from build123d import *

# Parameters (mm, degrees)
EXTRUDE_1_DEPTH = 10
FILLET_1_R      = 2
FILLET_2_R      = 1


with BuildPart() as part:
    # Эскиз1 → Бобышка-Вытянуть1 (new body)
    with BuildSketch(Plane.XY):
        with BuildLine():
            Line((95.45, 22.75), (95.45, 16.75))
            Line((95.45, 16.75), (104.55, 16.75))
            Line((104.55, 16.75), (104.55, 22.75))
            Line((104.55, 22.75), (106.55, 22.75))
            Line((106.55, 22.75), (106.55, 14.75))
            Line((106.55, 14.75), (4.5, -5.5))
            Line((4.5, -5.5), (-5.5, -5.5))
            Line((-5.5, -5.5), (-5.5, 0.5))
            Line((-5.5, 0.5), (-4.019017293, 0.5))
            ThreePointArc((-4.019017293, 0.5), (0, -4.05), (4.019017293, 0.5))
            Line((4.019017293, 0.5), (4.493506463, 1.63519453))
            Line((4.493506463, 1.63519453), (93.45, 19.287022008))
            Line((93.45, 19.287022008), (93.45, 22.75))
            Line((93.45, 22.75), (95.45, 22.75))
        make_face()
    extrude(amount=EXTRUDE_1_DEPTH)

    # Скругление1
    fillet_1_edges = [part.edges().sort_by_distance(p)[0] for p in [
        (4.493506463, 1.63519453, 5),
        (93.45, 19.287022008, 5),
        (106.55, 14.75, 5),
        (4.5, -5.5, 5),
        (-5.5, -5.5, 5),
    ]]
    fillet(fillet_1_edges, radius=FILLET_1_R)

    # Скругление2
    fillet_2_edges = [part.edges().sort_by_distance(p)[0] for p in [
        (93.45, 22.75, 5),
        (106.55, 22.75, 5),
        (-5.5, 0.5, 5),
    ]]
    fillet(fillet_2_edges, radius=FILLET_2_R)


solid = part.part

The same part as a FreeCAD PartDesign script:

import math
import FreeCAD as App
import Part
import Sketcher


def edges_at(feature, points):
    """Names of the edges that pass closest to the given points."""
    edges = feature.Shape.Edges
    near = lambda p: min(range(len(edges)), key=lambda i: edges[i].distToShape(Part.Vertex(*p))[0])
    return sorted({f"Edge{near(p) + 1}" for p in points})

doc = App.newDocument("Part")
body = doc.addObject("PartDesign::Body", "Body")

# Sketch on XY plane
sketch1 = doc.addObject("Sketcher::SketchObject", "Sketch")
body.addObject(sketch1)
sketch1.AttachmentSupport = (doc.XY_Plane, [""])
sketch1.MapMode = "FlatFace"
sketch1.addGeometry([
    Part.LineSegment(App.Vector(95.5, 16.8, 0), App.Vector(95.5, 22.8, 0)),  # 0
    Part.LineSegment(App.Vector(95.5, 22.8, 0), App.Vector(93.5, 22.8, 0)),  # 1
    Part.LineSegment(App.Vector(93.5, 22.8, 0), App.Vector(93.5, 19.3, 0)),  # 2
    Part.LineSegment(App.Vector(93.5, 19.3, 0), App.Vector(4.5, 1.6, 0)),  # 3
    Part.LineSegment(App.Vector(4.5, 1.6, 0), App.Vector(4, 0.5, 0)),  # 4
    Part.ArcOfCircle(Part.Circle(App.Vector(0, 0, 0), App.Vector(0, 0, 1), 4), math.radians(173), math.radians(367)),  # 5
    Part.LineSegment(App.Vector(-4, 0.5, 0), App.Vector(-5.5, 0.5, 0)),  # 6
    Part.LineSegment(App.Vector(-5.5, 0.5, 0), App.Vector(-5.5, -5.5, 0)),  # 7
    Part.LineSegment(App.Vector(-5.5, -5.5, 0), App.Vector(4.5, -5.5, 0)),  # 8
    Part.LineSegment(App.Vector(4.5, -5.5, 0), App.Vector(106.5, 14.8, 0)),  # 9
    Part.LineSegment(App.Vector(106.5, 14.8, 0), App.Vector(106.5, 22.8, 0)),  # 10
    Part.LineSegment(App.Vector(106.5, 22.8, 0), App.Vector(104.5, 22.8, 0)),  # 11
    Part.LineSegment(App.Vector(104.5, 22.8, 0), App.Vector(104.5, 16.8, 0)),  # 12
    Part.LineSegment(App.Vector(104.5, 16.8, 0), App.Vector(95.5, 16.8, 0)),  # 13
], False)
sketch1.addConstraint([
    Sketcher.Constraint("Coincident", 0, 2, 1, 1),
    Sketcher.Constraint("Coincident", 1, 2, 2, 1),
    Sketcher.Constraint("Coincident", 2, 2, 3, 1),
    Sketcher.Constraint("Coincident", 3, 2, 4, 1),
    Sketcher.Constraint("Coincident", 4, 2, 5, 2),
    Sketcher.Constraint("Coincident", 5, 1, 6, 1),
    Sketcher.Constraint("Coincident", 6, 2, 7, 1),
    Sketcher.Constraint("Coincident", 7, 2, 8, 1),
    Sketcher.Constraint("Coincident", 8, 2, 9, 1),
    Sketcher.Constraint("Coincident", 9, 2, 10, 1),
    Sketcher.Constraint("Coincident", 10, 2, 11, 1),
    Sketcher.Constraint("Coincident", 11, 2, 12, 1),
    Sketcher.Constraint("Coincident", 12, 2, 13, 1),
    Sketcher.Constraint("Coincident", 13, 2, 0, 1),
    Sketcher.Constraint("Vertical", 0),
    Sketcher.Constraint("Horizontal", 1),
    Sketcher.Constraint("Vertical", 2),
    Sketcher.Constraint("Horizontal", 6),
    Sketcher.Constraint("Vertical", 7),
    Sketcher.Constraint("Horizontal", 8),
    Sketcher.Constraint("Vertical", 10),
    Sketcher.Constraint("Horizontal", 11),
    Sketcher.Constraint("Vertical", 12),
    Sketcher.Constraint("Horizontal", 13),
    Sketcher.Constraint("Coincident", 5, 3, -1, 1),
    Sketcher.Constraint("Parallel", 3, 9),
    Sketcher.Constraint("Horizontal", 4, 2, 5, 1),
    Sketcher.Constraint("Horizontal", 1, 2, 10, 2),
    Sketcher.Constraint("Equal", 1, 11),
    Sketcher.Constraint("Equal", 0, 7),
    Sketcher.Constraint("DistanceX", 1, 2, 1, 1, 2.0),
    Sketcher.Constraint("DistanceX", 8, 1, 8, 2, 10.0),
    Sketcher.Constraint("DistanceY", 0, 1, 0, 2, 6.0),
    Sketcher.Constraint("DistanceY", 10, 1, 10, 2, 8.0),
    Sketcher.Constraint("Radius", 5, 4.05),
    Sketcher.Constraint("DistanceX", 13, 2, 13, 1, 9.1),
    Sketcher.Constraint("DistanceY", -1, 1, 4, 2, 0.5),
    Sketcher.Constraint("DistanceX", 6, 2, -1, 1, 5.5),
    Sketcher.Constraint("DistanceX", -1, 1, 0, 2, 95.45),
    Sketcher.Constraint("DistanceY", -1, 1, 0, 2, 22.75),
    Sketcher.Constraint("Distance", 3, 90.69093),
    Sketcher.Constraint("Distance", 4, 1.230368),
])
pad1 = doc.addObject("PartDesign::Pad", "Pad")
body.addObject(pad1)
pad1.Profile = sketch1
pad1.Length = 10
doc.recompute()

fillet = doc.addObject("PartDesign::Fillet", "Fillet")
body.addObject(fillet)
fillet.Base = (pad1, edges_at(pad1, [
    (4.494, 1.635, 5),
    (93.45, 19.287, 5),
    (106.55, 14.75, 5),
    (4.5, -5.5, 5),
    (-5.5, -5.5, 5),
]))
fillet.Radius = 2
doc.recompute()

fillet2 = doc.addObject("PartDesign::Fillet", "Fillet001")
body.addObject(fillet2)
fillet2.Base = (fillet, edges_at(fillet, [(93.45, 22.75, 5), (106.55, 22.75, 5), (-5.5, 0.5, 5)]))
fillet2.Radius = 1

doc.recompute()
